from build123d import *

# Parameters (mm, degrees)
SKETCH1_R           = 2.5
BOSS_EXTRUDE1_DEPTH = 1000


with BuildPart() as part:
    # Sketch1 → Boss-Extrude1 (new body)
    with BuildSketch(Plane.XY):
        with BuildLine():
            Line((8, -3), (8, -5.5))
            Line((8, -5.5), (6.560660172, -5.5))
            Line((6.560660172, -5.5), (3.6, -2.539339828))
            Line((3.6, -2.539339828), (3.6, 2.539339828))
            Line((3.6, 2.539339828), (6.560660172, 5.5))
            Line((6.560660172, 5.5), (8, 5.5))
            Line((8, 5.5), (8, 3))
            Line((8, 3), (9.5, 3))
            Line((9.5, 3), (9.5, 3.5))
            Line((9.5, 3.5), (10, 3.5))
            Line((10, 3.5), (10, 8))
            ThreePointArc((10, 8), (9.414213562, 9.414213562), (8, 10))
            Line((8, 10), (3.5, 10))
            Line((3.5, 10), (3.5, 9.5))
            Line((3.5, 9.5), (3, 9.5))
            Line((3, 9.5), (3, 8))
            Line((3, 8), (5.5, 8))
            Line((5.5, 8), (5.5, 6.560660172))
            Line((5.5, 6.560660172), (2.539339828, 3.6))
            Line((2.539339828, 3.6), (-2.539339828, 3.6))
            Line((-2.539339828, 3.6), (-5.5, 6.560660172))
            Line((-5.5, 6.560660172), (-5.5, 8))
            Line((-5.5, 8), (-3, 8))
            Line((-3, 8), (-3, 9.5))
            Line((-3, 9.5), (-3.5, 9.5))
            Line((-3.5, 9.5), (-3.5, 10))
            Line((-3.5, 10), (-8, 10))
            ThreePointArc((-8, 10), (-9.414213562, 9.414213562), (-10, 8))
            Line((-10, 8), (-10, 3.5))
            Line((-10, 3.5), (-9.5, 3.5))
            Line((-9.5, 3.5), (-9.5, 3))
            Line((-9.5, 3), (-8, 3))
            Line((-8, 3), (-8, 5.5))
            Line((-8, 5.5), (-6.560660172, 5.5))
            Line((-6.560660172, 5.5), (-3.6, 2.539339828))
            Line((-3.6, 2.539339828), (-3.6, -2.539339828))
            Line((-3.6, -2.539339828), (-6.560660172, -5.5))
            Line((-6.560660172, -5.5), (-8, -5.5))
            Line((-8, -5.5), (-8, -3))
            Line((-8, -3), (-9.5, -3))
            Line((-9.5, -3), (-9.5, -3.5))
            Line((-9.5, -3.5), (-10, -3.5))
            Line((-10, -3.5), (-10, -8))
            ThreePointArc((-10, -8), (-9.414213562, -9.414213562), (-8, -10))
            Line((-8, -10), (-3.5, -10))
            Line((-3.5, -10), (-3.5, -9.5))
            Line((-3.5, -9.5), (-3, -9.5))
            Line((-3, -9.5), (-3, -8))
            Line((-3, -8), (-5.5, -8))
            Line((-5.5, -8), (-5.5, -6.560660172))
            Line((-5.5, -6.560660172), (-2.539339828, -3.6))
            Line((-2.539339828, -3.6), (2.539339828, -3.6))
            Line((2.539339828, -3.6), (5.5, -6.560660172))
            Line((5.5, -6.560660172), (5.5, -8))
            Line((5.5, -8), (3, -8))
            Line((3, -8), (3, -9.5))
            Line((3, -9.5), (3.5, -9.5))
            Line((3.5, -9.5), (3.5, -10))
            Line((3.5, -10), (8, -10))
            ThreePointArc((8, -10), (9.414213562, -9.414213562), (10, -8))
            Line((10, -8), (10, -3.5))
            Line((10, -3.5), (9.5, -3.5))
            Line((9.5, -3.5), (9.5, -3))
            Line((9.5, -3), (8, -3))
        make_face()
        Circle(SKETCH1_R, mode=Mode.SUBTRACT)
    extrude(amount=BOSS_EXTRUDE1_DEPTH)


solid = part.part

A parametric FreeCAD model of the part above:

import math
import FreeCAD as App
import Part
import Sketcher
from FreeCAD import Vector
Q = App.Units.Quantity

doc = App.newDocument("Part")
params = doc.addObject("Spreadsheet::Sheet", "Params")
for row, (alias, value) in enumerate([
    ("sketch1_diameter", "5 mm"),
    ("sketch1_radius", "2 mm"),
    ("sketch1_width", "1.5 mm"),
    ("sketch1_width2", "4.5 mm"),
    ("sketch1_width3", "2.5 mm"),
    ("pad1_length", "1000 mm"),
], start=1):
    params.set(f"A{row}", alias)
    params.set(f"B{row}", "=" + value)
    params.setAlias(f"B{row}", alias)

body = doc.addObject("PartDesign::Body", "Body")

sketch1 = body.newObject("Sketcher::SketchObject", "Sketch")
sketch1.AttachmentSupport = (doc.getObject("XY_Plane"), [""])
sketch1.MapMode = "FlatFace"
sketch1.addGeometry([
    Part.LineSegment(Vector(8, -3, 0), Vector(8, -5.5, 0)),
    Part.LineSegment(Vector(8, -5.5, 0), Vector(6.6, -5.5, 0)),
    Part.LineSegment(Vector(6.6, -5.5, 0), Vector(3.6, -2.5, 0)),
    Part.LineSegment(Vector(3.6, -2.5, 0), Vector(3.6, 2.5, 0)),
    Part.LineSegment(Vector(3.6, 2.5, 0), Vector(6.6, 5.5, 0)),
    Part.LineSegment(Vector(6.6, 5.5, 0), Vector(8, 5.5, 0)),
    Part.LineSegment(Vector(8, 5.5, 0), Vector(8, 3, 0)),
    Part.LineSegment(Vector(8, 3, 0), Vector(9.5, 3, 0)),
    Part.LineSegment(Vector(9.5, 3, 0), Vector(9.5, 3.5, 0)),
    Part.LineSegment(Vector(9.5, 3.5, 0), Vector(10, 3.5, 0)),
    Part.LineSegment(Vector(10, 3.5, 0), Vector(10, 8, 0)),
    Part.ArcOfCircle(Part.Circle(Vector(8, 8, 0), Vector(0, 0, 1), 2), math.radians(0), math.radians(90)),
    Part.LineSegment(Vector(8, 10, 0), Vector(3.5, 10, 0)),
    Part.LineSegment(Vector(3.5, 10, 0), Vector(3.5, 9.5, 0)),
    Part.LineSegment(Vector(3.5, 9.5, 0), Vector(3, 9.5, 0)),
    Part.LineSegment(Vector(3, 9.5, 0), Vector(3, 8, 0)),
    Part.LineSegment(Vector(3, 8, 0), Vector(5.5, 8, 0)),
    Part.LineSegment(Vector(5.5, 8, 0), Vector(5.5, 6.6, 0)),
    Part.LineSegment(Vector(5.5, 6.6, 0), Vector(2.5, 3.6, 0)),
    Part.LineSegment(Vector(2.5, 3.6, 0), Vector(-2.5, 3.6, 0)),
    Part.LineSegment(Vector(-2.5, 3.6, 0), Vector(-5.5, 6.6, 0)),
    Part.LineSegment(Vector(-5.5, 6.6, 0), Vector(-5.5, 8, 0)),
    Part.LineSegment(Vector(-5.5, 8, 0), Vector(-3, 8, 0)),
    Part.LineSegment(Vector(-3, 8, 0), Vector(-3, 9.5, 0)),
    Part.LineSegment(Vector(-3, 9.5, 0), Vector(-3.5, 9.5, 0)),
    Part.LineSegment(Vector(-3.5, 9.5, 0), Vector(-3.5, 10, 0)),
    Part.LineSegment(Vector(-3.5, 10, 0), Vector(-8, 10, 0)),
    Part.ArcOfCircle(Part.Circle(Vector(-8, 8, 0), Vector(0, 0, 1), 2), math.radians(90), math.radians(180)),
    Part.LineSegment(Vector(-10, 8, 0), Vector(-10, 3.5, 0)),
    Part.LineSegment(Vector(-10, 3.5, 0), Vector(-9.5, 3.5, 0)),
    Part.LineSegment(Vector(-9.5, 3.5, 0), Vector(-9.5, 3, 0)),
    Part.LineSegment(Vector(-9.5, 3, 0), Vector(-8, 3, 0)),
    Part.LineSegment(Vector(-8, 3, 0), Vector(-8, 5.5, 0)),
    Part.LineSegment(Vector(-8, 5.5, 0), Vector(-6.6, 5.5, 0)),
    Part.LineSegment(Vector(-6.6, 5.5, 0), Vector(-3.6, 2.5, 0)),
    Part.LineSegment(Vector(-3.6, 2.5, 0), Vector(-3.6, -2.5, 0)),
    Part.LineSegment(Vector(-3.6, -2.5, 0), Vector(-6.6, -5.5, 0)),
    Part.LineSegment(Vector(-6.6, -5.5, 0), Vector(-8, -5.5, 0)),
    Part.LineSegment(Vector(-8, -5.5, 0), Vector(-8, -3, 0)),
    Part.LineSegment(Vector(-8, -3, 0), Vector(-9.5, -3, 0)),
    Part.LineSegment(Vector(-9.5, -3, 0), Vector(-9.5, -3.5, 0)),
    Part.LineSegment(Vector(-9.5, -3.5, 0), Vector(-10, -3.5, 0)),
    Part.LineSegment(Vector(-10, -3.5, 0), Vector(-10, -8, 0)),
    Part.ArcOfCircle(Part.Circle(Vector(-8, -8, 0), Vector(0, 0, 1), 2), math.radians(-180), math.radians(-90)),
    Part.LineSegment(Vector(-8, -10, 0), Vector(-3.5, -10, 0)),
    Part.LineSegment(Vector(-3.5, -10, 0), Vector(-3.5, -9.5, 0)),
    Part.LineSegment(Vector(-3.5, -9.5, 0), Vector(-3, -9.5, 0)),
    Part.LineSegment(Vector(-3, -9.5, 0), Vector(-3, -8, 0)),
    Part.LineSegment(Vector(-3, -8, 0), Vector(-5.5, -8, 0)),
    Part.LineSegment(Vector(-5.5, -8, 0), Vector(-5.5, -6.6, 0)),
    Part.LineSegment(Vector(-5.5, -6.6, 0), Vector(-2.5, -3.6, 0)),
    Part.LineSegment(Vector(-2.5, -3.6, 0), Vector(2.5, -3.6, 0)),
    Part.LineSegment(Vector(2.5, -3.6, 0), Vector(5.5, -6.6, 0)),
    Part.LineSegment(Vector(5.5, -6.6, 0), Vector(5.5, -8, 0)),
    Part.LineSegment(Vector(5.5, -8, 0), Vector(3, -8, 0)),
    Part.LineSegment(Vector(3, -8, 0), Vector(3, -9.5, 0)),
    Part.LineSegment(Vector(3, -9.5, 0), Vector(3.5, -9.5, 0)),
    Part.LineSegment(Vector(3.5, -9.5, 0), Vector(3.5, -10, 0)),
    Part.LineSegment(Vector(3.5, -10, 0), Vector(8, -10, 0)),
    Part.ArcOfCircle(Part.Circle(Vector(8, -8, 0), Vector(0, 0, 1), 2), math.radians(-90), math.radians(0)),
    Part.LineSegment(Vector(10, -8, 0), Vector(10, -3.5, 0)),
    Part.LineSegment(Vector(10, -3.5, 0), Vector(9.5, -3.5, 0)),
    Part.LineSegment(Vector(9.5, -3.5, 0), Vector(9.5, -3, 0)),
    Part.LineSegment(Vector(9.5, -3, 0), Vector(8, -3, 0)),
    Part.Circle(Vector(0, 0, 0), Vector(0, 0, 1), 2.5),
], False)
sketch1.addConstraint([
    Sketcher.Constraint("Coincident", 0, 2, 1, 1),
    Sketcher.Constraint("Coincident", 1, 2, 2, 1),
    Sketcher.Constraint("Coincident", 2, 2, 3, 1),
    Sketcher.Constraint("Coincident", 3, 2, 4, 1),
    Sketcher.Constraint("Coincident", 4, 2, 5, 1),
    Sketcher.Constraint("Coincident", 5, 2, 6, 1),
    Sketcher.Constraint("Coincident", 6, 2, 7, 1),
    Sketcher.Constraint("Coincident", 7, 2, 8, 1),
    Sketcher.Constraint("Coincident", 8, 2, 9, 1),
    Sketcher.Constraint("Coincident", 9, 2, 10, 1),
    Sketcher.Constraint("Tangent", 10, 2, 11, 1),
    Sketcher.Constraint("Tangent", 11, 2, 12, 1),
    Sketcher.Constraint("Coincident", 12, 2, 13, 1),
    Sketcher.Constraint("Coincident", 13, 2, 14, 1),
    Sketcher.Constraint("Coincident", 14, 2, 15, 1),
    Sketcher.Constraint("Coincident", 15, 2, 16, 1),
    Sketcher.Constraint("Coincident", 16, 2, 17, 1),
    Sketcher.Constraint("Coincident", 17, 2, 18, 1),
    Sketcher.Constraint("Coincident", 18, 2, 19, 1),
    Sketcher.Constraint("Coincident", 19, 2, 20, 1),
    Sketcher.Constraint("Coincident", 20, 2, 21, 1),
    Sketcher.Constraint("Coincident", 21, 2, 22, 1),
    Sketcher.Constraint("Coincident", 22, 2, 23, 1),
    Sketcher.Constraint("Coincident", 23, 2, 24, 1),
    Sketcher.Constraint("Coincident", 24, 2, 25, 1),
    Sketcher.Constraint("Coincident", 25, 2, 26, 1),
    Sketcher.Constraint("Tangent", 26, 2, 27, 1),
    Sketcher.Constraint("Tangent", 27, 2, 28, 1),
    Sketcher.Constraint("Coincident", 28, 2, 29, 1),
    Sketcher.Constraint("Coincident", 29, 2, 30, 1),
    Sketcher.Constraint("Coincident", 30, 2, 31, 1),
    Sketcher.Constraint("Coincident", 31, 2, 32, 1),
    Sketcher.Constraint("Coincident", 32, 2, 33, 1),
    Sketcher.Constraint("Coincident", 33, 2, 34, 1),
    Sketcher.Constraint("Coincident", 34, 2, 35, 1),
    Sketcher.Constraint("Coincident", 35, 2, 36, 1),
    Sketcher.Constraint("Coincident", 36, 2, 37, 1),
    Sketcher.Constraint("Coincident", 37, 2, 38, 1),
    Sketcher.Constraint("Coincident", 38, 2, 39, 1),
    Sketcher.Constraint("Coincident", 39, 2, 40, 1),
    Sketcher.Constraint("Coincident", 40, 2, 41, 1),
    Sketcher.Constraint("Coincident", 41, 2, 42, 1),
    Sketcher.Constraint("Tangent", 42, 2, 43, 1),
    Sketcher.Constraint("Tangent", 43, 2, 44, 1),
    Sketcher.Constraint("Coincident", 44, 2, 45, 1),
    Sketcher.Constraint("Coincident", 45, 2, 46, 1),
    Sketcher.Constraint("Coincident", 46, 2, 47, 1),
    Sketcher.Constraint("Coincident", 47, 2, 48, 1),
    Sketcher.Constraint("Coincident", 48, 2, 49, 1),
    Sketcher.Constraint("Coincident", 49, 2, 50, 1),
    Sketcher.Constraint("Coincident", 50, 2, 51, 1),
    Sketcher.Constraint("Coincident", 51, 2, 52, 1),
    Sketcher.Constraint("Coincident", 52, 2, 53, 1),
    Sketcher.Constraint("Coincident", 53, 2, 54, 1),
    Sketcher.Constraint("Coincident", 54, 2, 55, 1),
    Sketcher.Constraint("Coincident", 55, 2, 56, 1),
    Sketcher.Constraint("Coincident", 56, 2, 57, 1),
    Sketcher.Constraint("Coincident", 57, 2, 58, 1),
    Sketcher.Constraint("Tangent", 58, 2, 59, 1),
    Sketcher.Constraint("Tangent", 59, 2, 60, 1),
    Sketcher.Constraint("Coincident", 60, 2, 61, 1),
    Sketcher.Constraint("Coincident", 61, 2, 62, 1),
    Sketcher.Constraint("Coincident", 62, 2, 63, 1),
    Sketcher.Constraint("Coincident", 63, 2, 0, 1),
    Sketcher.Constraint("Vertical", 0),
    Sketcher.Constraint("Horizontal", 1),
    Sketcher.Constraint("Vertical", 3),
    Sketcher.Constraint("Horizontal", 5),
    Sketcher.Constraint("Vertical", 6),
    Sketcher.Constraint("Horizontal", 7),
    Sketcher.Constraint("Vertical", 8),
    Sketcher.Constraint("Horizontal", 9),
    Sketcher.Constraint("Vertical", 10),
    Sketcher.Constraint("Horizontal", 12),
    Sketcher.Constraint("Vertical", 13),
    Sketcher.Constraint("Horizontal", 14),
    Sketcher.Constraint("Vertical", 15),
    Sketcher.Constraint("Horizontal", 16),
    Sketcher.Constraint("Vertical", 17),
    Sketcher.Constraint("Horizontal", 19),
    Sketcher.Constraint("Vertical", 21),
    Sketcher.Constraint("Horizontal", 22),
    Sketcher.Constraint("Vertical", 23),
    Sketcher.Constraint("Horizontal", 24),
    Sketcher.Constraint("Vertical", 25),
    Sketcher.Constraint("Horizontal", 26),
    Sketcher.Constraint("Vertical", 28),
    Sketcher.Constraint("Horizontal", 29),
    Sketcher.Constraint("Vertical", 30),
    Sketcher.Constraint("Horizontal", 31),
    Sketcher.Constraint("Vertical", 32),
    Sketcher.Constraint("Horizontal", 33),
    Sketcher.Constraint("Vertical", 35),
    Sketcher.Constraint("Horizontal", 37),
    Sketcher.Constraint("Vertical", 38),
    Sketcher.Constraint("Horizontal", 39),
    Sketcher.Constraint("Vertical", 40),
    Sketcher.Constraint("Horizontal", 41),
    Sketcher.Constraint("Vertical", 42),
    Sketcher.Constraint("Horizontal", 44),
    Sketcher.Constraint("Vertical", 45),
    Sketcher.Constraint("Horizontal", 46),
    Sketcher.Constraint("Vertical", 47),
    Sketcher.Constraint("Horizontal", 48),
    Sketcher.Constraint("Vertical", 49),
    Sketcher.Constraint("Horizontal", 51),
    Sketcher.Constraint("Vertical", 53),
    Sketcher.Constraint("Horizontal", 54),
    Sketcher.Constraint("Vertical", 55),
    Sketcher.Constraint("Horizontal", 56),
    Sketcher.Constraint("Vertical", 57),
    Sketcher.Constraint("Horizontal", 58),
    Sketcher.Constraint("Vertical", 60),
    Sketcher.Constraint("Horizontal", 61),
    Sketcher.Constraint("Vertical", 62),
    Sketcher.Constraint("Horizontal", 63),
    Sketcher.Constraint("Coincident", 64, 3, -1, 1),
    Sketcher.Constraint("Equal", 11, 27),
    Sketcher.Constraint("Equal", 27, 43),
    Sketcher.Constraint("Equal", 43, 59),
    Sketcher.Constraint("Symmetric", 11, 3, 43, 3, -1, 1),
    Sketcher.Constraint("Symmetric", 27, 3, 59, 3, -1, 1),
    Sketcher.Constraint("Symmetric", 0, 2, 32, 2, -1, 1),
    Sketcher.Constraint("Symmetric", 2, 2, 34, 2, -1, 1),
    Sketcher.Constraint("Symmetric", 4, 2, 36, 2, -1, 1),
    Sketcher.Constraint("Symmetric", 6, 2, 38, 2, -1, 1),
    Sketcher.Constraint("Symmetric", 8, 2, 40, 2, -1, 1),
    Sketcher.Constraint("Symmetric", 13, 2, 45, 2, -1, 1),
    Sketcher.Constraint("Symmetric", 15, 2, 47, 2, -1, 1),
    Sketcher.Constraint("Symmetric", 17, 2, 49, 2, -1, 1),
    Sketcher.Constraint("Symmetric", 18, 2, 50, 2, -1, 1),
    Sketcher.Constraint("Symmetric", 20, 2, 52, 2, -1, 1),
    Sketcher.Constraint("Symmetric", 22, 2, 54, 2, -1, 1),
    Sketcher.Constraint("Symmetric", 24, 2, 56, 2, -1, 1),
    Sketcher.Constraint("Symmetric", 29, 2, 61, 2, -1, 1),
    Sketcher.Constraint("Symmetric", 11, 3, 27, 3, -2),
    Sketcher.Constraint("Symmetric", 17, 2, 20, 2, -2),
    Sketcher.Constraint("Symmetric", 15, 2, 22, 2, -2),
    Sketcher.Constraint("Symmetric", 13, 2, 24, 2, -2),
    Sketcher.Constraint("Symmetric", 8, 2, 29, 2, -2),
    Sketcher.Constraint("Symmetric", 6, 2, 31, 2, -2),
    Sketcher.Constraint("Symmetric", 4, 2, 33, 2, -2),
    Sketcher.Constraint("Perpendicular", 2, 4),
    Sketcher.Constraint("Parallel", 4, 18),
    Sketcher.Constraint("Perpendicular", 18, 20),
    Sketcher.Constraint("Parallel", 20, 34),
    Sketcher.Constraint("Perpendicular", 34, 36),
    Sketcher.Constraint("Perpendicular", 50, 52),
    Sketcher.Constraint("Horizontal", 10, 2, 15, 2),
    Sketcher.Constraint("Horizontal", 3, 2, 34, 2),
    Sketcher.Constraint("Horizontal", 39, 2, 62, 2),
    Sketcher.Constraint("Vertical", 59, 3, 0, 2),
    Sketcher.Constraint("Equal", 9, 14),
    Sketcher.Constraint("Equal", 54, 0),
    Sketcher.Constraint("Equal", 51, 3),
    Sketcher.Constraint("Equal", 61, 8),
    Sketcher.Constraint("Equal", 58, 10),
    Sketcher.Constraint("Equal", 8, 13),
    Sketcher.Constraint("Equal", 37, 17),
    Sketcher.Constraint("Equal", 4, 18),
    Sketcher.Constraint("Diameter", 64, Q("5 mm")),
    Sketcher.Constraint("Radius", 11, Q("2 mm")),
    Sketcher.Constraint("DistanceX", 7, 1, 7, 2, Q("1.5 mm")),
    Sketcher.Constraint("DistanceX", 12, 2, 12, 1, Q("4.5 mm")),
    Sketcher.Constraint("DistanceX", 16, 1, 16, 2, Q("2.5 mm")),
    Sketcher.Constraint("DistanceX", -1, 1, 11, 3, Q("8 mm")),
    Sketcher.Constraint("DistanceX", -1, 1, 2, 2, Q("3.6 mm")),
    Sketcher.Constraint("DistanceX", 1, 2, 1, 1, Q("1.43934 mm")),
])
sketch1.setExpression("Constraints[160]", "Params.sketch1_diameter")
sketch1.setExpression("Constraints[161]", "Params.sketch1_radius")
sketch1.setExpression("Constraints[162]", "Params.sketch1_width")
sketch1.setExpression("Constraints[163]", "Params.sketch1_width2")
sketch1.setExpression("Constraints[164]", "Params.sketch1_width3")
pad1 = body.newObject("PartDesign::Pad", "Pad")
pad1.Profile = sketch1
pad1.setExpression("Length", "Params.pad1_length")

doc.recompute()
